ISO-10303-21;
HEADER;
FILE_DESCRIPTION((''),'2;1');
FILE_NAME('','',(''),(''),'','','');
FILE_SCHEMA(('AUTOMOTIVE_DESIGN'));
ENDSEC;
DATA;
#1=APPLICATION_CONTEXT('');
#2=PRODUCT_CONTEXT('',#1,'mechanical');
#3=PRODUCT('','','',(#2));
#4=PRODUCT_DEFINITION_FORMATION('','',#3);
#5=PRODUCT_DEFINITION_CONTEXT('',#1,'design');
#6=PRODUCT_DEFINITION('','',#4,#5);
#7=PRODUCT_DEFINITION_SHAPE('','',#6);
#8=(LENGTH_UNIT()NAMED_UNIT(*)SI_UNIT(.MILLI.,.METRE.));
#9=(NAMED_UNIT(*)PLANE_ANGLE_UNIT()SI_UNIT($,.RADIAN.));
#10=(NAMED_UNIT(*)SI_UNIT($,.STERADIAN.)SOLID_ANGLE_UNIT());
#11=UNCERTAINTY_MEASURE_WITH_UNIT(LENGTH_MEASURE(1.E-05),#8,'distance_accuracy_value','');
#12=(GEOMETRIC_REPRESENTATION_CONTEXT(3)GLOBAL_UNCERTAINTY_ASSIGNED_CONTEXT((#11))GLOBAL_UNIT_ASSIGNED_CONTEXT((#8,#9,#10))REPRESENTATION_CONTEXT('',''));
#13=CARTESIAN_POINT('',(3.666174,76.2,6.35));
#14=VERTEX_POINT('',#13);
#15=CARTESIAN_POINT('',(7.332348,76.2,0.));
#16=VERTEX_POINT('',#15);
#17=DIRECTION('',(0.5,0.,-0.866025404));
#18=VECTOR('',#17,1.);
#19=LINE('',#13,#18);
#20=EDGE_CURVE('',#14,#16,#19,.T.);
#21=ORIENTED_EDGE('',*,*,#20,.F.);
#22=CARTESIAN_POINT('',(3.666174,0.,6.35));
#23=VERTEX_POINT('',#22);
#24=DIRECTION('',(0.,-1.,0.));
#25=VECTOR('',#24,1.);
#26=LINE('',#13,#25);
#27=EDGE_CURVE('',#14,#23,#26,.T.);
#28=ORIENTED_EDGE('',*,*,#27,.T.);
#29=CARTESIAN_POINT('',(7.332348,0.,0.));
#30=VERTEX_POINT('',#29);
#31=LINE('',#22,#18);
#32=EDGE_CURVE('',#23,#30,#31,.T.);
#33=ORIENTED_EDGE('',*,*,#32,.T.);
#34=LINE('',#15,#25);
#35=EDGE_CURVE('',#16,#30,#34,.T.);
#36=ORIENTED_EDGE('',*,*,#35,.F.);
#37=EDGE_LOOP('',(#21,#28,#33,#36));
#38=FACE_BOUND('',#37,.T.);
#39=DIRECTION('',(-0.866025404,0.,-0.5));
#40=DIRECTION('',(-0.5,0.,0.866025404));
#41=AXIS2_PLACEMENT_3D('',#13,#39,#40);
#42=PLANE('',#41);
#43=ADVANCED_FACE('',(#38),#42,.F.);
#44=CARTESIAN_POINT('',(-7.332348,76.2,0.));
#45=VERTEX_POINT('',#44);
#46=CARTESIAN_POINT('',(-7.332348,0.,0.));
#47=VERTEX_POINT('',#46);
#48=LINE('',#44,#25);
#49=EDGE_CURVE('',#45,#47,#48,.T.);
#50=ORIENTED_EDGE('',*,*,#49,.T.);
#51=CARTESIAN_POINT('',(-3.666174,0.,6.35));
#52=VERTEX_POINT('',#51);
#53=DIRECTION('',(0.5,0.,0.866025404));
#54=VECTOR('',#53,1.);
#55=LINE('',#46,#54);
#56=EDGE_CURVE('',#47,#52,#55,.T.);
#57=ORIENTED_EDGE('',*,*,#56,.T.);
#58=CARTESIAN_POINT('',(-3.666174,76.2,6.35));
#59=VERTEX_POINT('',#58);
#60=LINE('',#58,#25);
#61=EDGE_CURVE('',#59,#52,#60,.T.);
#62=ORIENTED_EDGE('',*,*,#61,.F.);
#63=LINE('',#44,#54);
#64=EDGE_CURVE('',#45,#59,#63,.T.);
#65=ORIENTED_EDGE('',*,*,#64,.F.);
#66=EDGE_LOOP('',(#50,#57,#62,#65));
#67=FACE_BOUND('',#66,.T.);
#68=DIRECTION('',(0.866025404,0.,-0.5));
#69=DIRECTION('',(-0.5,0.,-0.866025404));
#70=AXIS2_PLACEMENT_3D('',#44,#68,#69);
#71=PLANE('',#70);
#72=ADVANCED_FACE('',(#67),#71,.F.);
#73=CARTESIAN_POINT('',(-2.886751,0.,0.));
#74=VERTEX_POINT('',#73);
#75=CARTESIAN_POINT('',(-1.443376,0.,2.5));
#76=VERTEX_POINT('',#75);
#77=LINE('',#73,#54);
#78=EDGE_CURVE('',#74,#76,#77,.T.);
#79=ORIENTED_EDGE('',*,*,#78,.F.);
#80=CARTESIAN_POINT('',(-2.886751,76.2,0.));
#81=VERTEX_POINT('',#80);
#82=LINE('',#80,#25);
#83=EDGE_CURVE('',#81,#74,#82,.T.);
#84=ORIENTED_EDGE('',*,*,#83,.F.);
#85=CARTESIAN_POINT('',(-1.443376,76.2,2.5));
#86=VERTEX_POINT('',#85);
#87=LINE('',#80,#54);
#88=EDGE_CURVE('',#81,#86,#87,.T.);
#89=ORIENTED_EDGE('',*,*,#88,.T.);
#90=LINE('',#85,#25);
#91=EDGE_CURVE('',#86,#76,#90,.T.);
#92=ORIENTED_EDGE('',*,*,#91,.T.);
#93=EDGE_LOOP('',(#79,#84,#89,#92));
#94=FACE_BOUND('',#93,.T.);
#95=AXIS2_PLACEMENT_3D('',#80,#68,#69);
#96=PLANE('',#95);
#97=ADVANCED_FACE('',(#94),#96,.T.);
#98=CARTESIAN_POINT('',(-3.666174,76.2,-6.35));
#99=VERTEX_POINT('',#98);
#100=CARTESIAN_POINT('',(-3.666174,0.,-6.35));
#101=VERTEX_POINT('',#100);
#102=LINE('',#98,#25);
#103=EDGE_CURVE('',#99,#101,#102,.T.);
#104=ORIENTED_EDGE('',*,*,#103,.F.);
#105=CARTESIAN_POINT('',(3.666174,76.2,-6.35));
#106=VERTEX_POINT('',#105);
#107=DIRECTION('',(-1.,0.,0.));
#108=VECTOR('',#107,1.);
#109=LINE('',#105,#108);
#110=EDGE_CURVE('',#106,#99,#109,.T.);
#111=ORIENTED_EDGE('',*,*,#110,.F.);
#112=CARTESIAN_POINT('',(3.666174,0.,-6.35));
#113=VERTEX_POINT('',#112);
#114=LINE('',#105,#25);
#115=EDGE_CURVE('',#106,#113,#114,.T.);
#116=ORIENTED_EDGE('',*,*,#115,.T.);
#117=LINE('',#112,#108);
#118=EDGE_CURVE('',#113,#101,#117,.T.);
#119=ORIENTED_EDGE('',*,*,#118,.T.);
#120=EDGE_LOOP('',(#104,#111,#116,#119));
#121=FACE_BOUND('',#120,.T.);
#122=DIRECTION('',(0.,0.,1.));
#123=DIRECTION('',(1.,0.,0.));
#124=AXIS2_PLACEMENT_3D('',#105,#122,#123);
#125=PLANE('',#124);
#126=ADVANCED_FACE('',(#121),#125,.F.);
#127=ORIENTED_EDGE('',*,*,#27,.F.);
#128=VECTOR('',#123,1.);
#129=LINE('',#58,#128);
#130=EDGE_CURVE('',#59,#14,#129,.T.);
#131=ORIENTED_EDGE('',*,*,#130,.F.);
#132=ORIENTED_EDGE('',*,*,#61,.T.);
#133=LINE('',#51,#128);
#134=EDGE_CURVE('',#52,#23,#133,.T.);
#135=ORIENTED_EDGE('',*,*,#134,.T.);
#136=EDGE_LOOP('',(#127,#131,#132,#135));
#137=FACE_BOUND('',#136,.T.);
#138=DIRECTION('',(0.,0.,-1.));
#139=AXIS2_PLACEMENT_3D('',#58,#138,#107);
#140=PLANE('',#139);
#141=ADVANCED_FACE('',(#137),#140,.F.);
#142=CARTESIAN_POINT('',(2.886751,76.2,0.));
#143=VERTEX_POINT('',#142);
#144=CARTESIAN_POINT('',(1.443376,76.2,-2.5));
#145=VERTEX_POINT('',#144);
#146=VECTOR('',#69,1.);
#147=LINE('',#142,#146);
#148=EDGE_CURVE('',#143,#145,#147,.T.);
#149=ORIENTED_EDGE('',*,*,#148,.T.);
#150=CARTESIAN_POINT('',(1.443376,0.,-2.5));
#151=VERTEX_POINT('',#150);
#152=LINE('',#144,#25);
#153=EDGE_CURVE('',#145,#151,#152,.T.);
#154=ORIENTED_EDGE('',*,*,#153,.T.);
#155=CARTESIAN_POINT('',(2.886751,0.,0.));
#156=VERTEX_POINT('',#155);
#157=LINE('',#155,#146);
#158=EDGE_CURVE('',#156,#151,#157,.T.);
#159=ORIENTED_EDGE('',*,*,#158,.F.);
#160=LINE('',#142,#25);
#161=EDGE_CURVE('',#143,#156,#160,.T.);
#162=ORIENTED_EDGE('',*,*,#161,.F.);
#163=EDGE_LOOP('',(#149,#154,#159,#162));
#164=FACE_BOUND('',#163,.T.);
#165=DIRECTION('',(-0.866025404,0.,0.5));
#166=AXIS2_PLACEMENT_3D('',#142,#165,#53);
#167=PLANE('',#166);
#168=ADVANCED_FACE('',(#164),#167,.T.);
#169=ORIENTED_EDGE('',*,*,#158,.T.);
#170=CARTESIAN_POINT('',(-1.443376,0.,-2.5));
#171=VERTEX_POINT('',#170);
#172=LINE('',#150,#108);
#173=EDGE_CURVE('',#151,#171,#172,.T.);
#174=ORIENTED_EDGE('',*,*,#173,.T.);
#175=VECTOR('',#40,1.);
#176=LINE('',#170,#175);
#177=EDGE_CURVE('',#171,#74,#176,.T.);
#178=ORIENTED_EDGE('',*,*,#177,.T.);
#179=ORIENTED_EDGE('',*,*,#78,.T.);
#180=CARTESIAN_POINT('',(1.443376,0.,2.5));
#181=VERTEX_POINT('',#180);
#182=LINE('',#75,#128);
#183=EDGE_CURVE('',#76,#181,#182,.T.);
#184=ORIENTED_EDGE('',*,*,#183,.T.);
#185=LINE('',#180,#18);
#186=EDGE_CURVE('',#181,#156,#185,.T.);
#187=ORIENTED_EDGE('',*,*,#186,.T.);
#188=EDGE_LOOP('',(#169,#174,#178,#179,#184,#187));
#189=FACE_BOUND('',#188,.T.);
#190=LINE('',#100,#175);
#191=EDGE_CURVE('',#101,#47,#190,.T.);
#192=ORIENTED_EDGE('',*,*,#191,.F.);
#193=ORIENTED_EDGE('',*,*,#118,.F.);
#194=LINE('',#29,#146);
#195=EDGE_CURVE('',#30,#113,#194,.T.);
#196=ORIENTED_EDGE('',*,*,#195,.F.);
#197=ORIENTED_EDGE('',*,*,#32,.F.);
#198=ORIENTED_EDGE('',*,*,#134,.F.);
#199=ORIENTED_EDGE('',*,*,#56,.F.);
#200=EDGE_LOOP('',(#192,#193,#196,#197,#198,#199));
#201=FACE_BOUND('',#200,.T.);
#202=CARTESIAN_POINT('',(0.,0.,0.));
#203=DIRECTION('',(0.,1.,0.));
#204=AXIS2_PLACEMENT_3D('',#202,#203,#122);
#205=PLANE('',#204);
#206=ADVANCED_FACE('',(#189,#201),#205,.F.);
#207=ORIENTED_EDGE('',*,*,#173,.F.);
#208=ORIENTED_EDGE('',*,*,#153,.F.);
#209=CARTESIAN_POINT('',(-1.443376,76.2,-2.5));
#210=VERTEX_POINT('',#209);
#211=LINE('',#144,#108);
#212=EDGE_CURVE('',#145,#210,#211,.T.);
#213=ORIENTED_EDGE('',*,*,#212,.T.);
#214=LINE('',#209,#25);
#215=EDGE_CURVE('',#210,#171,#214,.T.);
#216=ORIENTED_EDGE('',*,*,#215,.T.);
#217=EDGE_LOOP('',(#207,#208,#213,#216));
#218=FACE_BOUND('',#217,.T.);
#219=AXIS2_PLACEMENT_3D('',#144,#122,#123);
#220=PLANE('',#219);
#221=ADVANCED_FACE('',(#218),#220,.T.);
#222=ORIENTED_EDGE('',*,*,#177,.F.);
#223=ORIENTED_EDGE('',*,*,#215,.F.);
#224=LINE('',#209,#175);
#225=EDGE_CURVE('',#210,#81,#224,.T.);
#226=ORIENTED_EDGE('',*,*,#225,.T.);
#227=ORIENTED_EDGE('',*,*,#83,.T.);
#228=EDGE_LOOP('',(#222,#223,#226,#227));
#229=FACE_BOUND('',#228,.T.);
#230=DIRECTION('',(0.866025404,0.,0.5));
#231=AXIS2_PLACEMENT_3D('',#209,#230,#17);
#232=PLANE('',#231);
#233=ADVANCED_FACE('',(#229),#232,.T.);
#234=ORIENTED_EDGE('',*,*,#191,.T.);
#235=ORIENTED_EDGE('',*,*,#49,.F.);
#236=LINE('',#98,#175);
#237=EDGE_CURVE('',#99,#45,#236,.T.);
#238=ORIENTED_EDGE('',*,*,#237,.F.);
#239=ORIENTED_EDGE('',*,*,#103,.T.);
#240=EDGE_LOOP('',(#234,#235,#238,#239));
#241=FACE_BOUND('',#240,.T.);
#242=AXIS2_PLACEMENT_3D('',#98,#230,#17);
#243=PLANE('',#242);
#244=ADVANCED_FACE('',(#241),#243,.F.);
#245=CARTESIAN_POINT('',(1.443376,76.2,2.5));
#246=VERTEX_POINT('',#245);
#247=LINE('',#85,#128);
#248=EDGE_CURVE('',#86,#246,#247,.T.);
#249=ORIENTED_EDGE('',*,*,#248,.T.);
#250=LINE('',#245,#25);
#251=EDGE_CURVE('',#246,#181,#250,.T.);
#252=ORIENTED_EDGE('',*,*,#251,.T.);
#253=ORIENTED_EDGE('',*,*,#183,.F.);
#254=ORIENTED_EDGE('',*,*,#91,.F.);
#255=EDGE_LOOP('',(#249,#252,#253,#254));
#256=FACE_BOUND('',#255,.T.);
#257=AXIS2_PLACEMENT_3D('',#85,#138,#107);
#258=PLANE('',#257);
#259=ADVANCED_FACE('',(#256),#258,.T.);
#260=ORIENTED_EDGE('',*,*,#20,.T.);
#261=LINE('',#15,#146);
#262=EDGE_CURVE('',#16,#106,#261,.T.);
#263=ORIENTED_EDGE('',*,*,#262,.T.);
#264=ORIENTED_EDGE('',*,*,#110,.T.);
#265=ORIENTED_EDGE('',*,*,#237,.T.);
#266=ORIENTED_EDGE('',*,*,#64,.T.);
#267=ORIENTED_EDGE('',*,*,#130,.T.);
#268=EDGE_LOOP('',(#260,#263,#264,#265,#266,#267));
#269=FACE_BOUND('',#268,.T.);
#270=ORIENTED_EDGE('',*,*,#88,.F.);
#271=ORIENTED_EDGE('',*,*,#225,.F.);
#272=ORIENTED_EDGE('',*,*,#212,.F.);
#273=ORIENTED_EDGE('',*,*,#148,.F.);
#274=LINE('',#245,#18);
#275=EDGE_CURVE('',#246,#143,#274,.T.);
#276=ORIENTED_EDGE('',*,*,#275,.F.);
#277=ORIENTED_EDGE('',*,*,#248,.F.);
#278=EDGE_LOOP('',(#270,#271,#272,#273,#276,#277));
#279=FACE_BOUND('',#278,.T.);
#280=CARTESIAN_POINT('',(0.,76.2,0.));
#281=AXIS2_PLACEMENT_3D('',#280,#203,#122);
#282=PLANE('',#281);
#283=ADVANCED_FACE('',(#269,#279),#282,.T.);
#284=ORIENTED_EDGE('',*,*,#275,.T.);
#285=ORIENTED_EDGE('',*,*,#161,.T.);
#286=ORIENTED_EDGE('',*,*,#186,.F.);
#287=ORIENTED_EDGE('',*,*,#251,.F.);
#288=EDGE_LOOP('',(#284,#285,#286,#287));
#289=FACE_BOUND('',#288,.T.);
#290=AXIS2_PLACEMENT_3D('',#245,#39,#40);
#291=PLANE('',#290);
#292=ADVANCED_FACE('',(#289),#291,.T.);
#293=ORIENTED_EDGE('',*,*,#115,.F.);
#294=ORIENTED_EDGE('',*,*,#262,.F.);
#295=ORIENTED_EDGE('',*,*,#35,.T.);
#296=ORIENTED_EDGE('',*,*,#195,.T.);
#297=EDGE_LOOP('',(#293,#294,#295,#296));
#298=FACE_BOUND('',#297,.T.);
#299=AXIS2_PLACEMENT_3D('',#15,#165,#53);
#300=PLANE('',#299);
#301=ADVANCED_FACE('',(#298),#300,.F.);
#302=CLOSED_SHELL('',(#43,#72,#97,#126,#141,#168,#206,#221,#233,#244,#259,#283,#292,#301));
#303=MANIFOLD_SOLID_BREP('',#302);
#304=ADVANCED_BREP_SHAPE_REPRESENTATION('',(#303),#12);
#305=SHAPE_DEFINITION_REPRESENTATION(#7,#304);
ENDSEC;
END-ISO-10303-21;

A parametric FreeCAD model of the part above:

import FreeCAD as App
import Part
import Sketcher
from FreeCAD import Vector
Q = App.Units.Quantity

doc = App.newDocument("Part")
body = doc.addObject("PartDesign::Body", "Body")

# Sketch on XZ plane
sketch1 = body.newObject("Sketcher::SketchObject", "Sketch")
sketch1.AttachmentSupport = (doc.getObject("XZ_Plane"), [""])
sketch1.MapMode = "FlatFace"
sketch1.addGeometry(Part.LineSegment(Vector(7.3, 0, 0), Vector(3.7, -6.3, 0)), False)
sketch1.addGeometry(Part.LineSegment(Vector(3.7, -6.3, 0), Vector(-3.7, -6.3, 0)), False)
sketch1.addGeometry(Part.LineSegment(Vector(-3.7, -6.3, 0), Vector(-7.3, 0, 0)), False)
sketch1.addGeometry(Part.LineSegment(Vector(-7.3, 0, 0), Vector(-3.7, 6.3, 0)), False)
sketch1.addGeometry(Part.LineSegment(Vector(-3.7, 6.3, 0), Vector(3.7, 6.3, 0)), False)
sketch1.addGeometry(Part.LineSegment(Vector(3.7, 6.3, 0), Vector(7.3, 0, 0)), False)
sketch1.addGeometry(Part.LineSegment(Vector(1.4, -2.5, 0), Vector(2.9, 0, 0)), False)
sketch1.addGeometry(Part.LineSegment(Vector(2.9, 0, 0), Vector(1.4, 2.5, 0)), False)
sketch1.addGeometry(Part.LineSegment(Vector(1.4, 2.5, 0), Vector(-1.4, 2.5, 0)), False)
sketch1.addGeometry(Part.LineSegment(Vector(-1.4, 2.5, 0), Vector(-2.9, 0, 0)), False)
sketch1.addGeometry(Part.LineSegment(Vector(-2.9, 0, 0), Vector(-1.4, -2.5, 0)), False)
sketch1.addGeometry(Part.LineSegment(Vector(-1.4, -2.5, 0), Vector(1.4, -2.5, 0)), False)
sketch1.addConstraint(Sketcher.Constraint("Coincident", 0, 2, 1, 1))
sketch1.addConstraint(Sketcher.Constraint("Coincident", 1, 2, 2, 1))
sketch1.addConstraint(Sketcher.Constraint("Coincident", 2, 2, 3, 1))
sketch1.addConstraint(Sketcher.Constraint("Coincident", 3, 2, 4, 1))
sketch1.addConstraint(Sketcher.Constraint("Coincident", 4, 2, 5, 1))
sketch1.addConstraint(Sketcher.Constraint("Coincident", 5, 2, 0, 1))
sketch1.addConstraint(Sketcher.Constraint("Coincident", 6, 2, 7, 1))
sketch1.addConstraint(Sketcher.Constraint("Coincident", 7, 2, 8, 1))
sketch1.addConstraint(Sketcher.Constraint("Coincident", 8, 2, 9, 1))
sketch1.addConstraint(Sketcher.Constraint("Coincident", 9, 2, 10, 1))
sketch1.addConstraint(Sketcher.Constraint("Coincident", 10, 2, 11, 1))
sketch1.addConstraint(Sketcher.Constraint("Coincident", 11, 2, 6, 1))
sketch1.addConstraint(Sketcher.Constraint("Horizontal", 1))
sketch1.addConstraint(Sketcher.Constraint("Horizontal", 4))
sketch1.addConstraint(Sketcher.Constraint("Horizontal", 8))
sketch1.addConstraint(Sketcher.Constraint("Horizontal", 11))
sketch1.addConstraint(Sketcher.Constraint("Symmetric", 0, 2, 3, 2, -1, 1))
sketch1.addConstraint(Sketcher.Constraint("Symmetric", 2, 2, 5, 2, -1, 1))
sketch1.addConstraint(Sketcher.Constraint("Symmetric", 6, 2, 9, 2, -1, 1))
sketch1.addConstraint(Sketcher.Constraint("Symmetric", 7, 2, 10, 2, -1, 1))
sketch1.addConstraint(Sketcher.Constraint("PointOnObject", 2, 2, -1))
sketch1.addConstraint(Sketcher.Constraint("PointOnObject", 6, 2, -1))
sketch1.addConstraint(Sketcher.Constraint("Parallel", 2, 5))
sketch1.addConstraint(Sketcher.Constraint("Parallel", 3, 6))
sketch1.addConstraint(Sketcher.Constraint("Parallel", 5, 7))
sketch1.addConstraint(Sketcher.Constraint("Parallel", 6, 9))
sketch1.addConstraint(Sketcher.Constraint("Vertical", 1, 2, 3, 2))
sketch1.addConstraint(Sketcher.Constraint("Angle", 0, Q("-120 deg")))
sketch1.addConstraint(Sketcher.Constraint("DistanceY", 1, 2, 3, 2, Q("0.5 in")))
sketch1.addConstraint(Sketcher.Constraint("DistanceX", 1, 2, 1, 1, Q("7.332348 mm")))
sketch1.addConstraint(Sketcher.Constraint("DistanceX", 8, 2, 8, 1, Q("2.886751 mm")))
sketch1.addConstraint(Sketcher.Constraint("DistanceY", -1, 1, 7, 2, Q("2.5 mm")))
pad1 = body.newObject("PartDesign::Pad", "Pad")
pad1.Profile = sketch1
pad1.Length = Q("3 in")
pad1.Reversed = True

doc.recompute()
